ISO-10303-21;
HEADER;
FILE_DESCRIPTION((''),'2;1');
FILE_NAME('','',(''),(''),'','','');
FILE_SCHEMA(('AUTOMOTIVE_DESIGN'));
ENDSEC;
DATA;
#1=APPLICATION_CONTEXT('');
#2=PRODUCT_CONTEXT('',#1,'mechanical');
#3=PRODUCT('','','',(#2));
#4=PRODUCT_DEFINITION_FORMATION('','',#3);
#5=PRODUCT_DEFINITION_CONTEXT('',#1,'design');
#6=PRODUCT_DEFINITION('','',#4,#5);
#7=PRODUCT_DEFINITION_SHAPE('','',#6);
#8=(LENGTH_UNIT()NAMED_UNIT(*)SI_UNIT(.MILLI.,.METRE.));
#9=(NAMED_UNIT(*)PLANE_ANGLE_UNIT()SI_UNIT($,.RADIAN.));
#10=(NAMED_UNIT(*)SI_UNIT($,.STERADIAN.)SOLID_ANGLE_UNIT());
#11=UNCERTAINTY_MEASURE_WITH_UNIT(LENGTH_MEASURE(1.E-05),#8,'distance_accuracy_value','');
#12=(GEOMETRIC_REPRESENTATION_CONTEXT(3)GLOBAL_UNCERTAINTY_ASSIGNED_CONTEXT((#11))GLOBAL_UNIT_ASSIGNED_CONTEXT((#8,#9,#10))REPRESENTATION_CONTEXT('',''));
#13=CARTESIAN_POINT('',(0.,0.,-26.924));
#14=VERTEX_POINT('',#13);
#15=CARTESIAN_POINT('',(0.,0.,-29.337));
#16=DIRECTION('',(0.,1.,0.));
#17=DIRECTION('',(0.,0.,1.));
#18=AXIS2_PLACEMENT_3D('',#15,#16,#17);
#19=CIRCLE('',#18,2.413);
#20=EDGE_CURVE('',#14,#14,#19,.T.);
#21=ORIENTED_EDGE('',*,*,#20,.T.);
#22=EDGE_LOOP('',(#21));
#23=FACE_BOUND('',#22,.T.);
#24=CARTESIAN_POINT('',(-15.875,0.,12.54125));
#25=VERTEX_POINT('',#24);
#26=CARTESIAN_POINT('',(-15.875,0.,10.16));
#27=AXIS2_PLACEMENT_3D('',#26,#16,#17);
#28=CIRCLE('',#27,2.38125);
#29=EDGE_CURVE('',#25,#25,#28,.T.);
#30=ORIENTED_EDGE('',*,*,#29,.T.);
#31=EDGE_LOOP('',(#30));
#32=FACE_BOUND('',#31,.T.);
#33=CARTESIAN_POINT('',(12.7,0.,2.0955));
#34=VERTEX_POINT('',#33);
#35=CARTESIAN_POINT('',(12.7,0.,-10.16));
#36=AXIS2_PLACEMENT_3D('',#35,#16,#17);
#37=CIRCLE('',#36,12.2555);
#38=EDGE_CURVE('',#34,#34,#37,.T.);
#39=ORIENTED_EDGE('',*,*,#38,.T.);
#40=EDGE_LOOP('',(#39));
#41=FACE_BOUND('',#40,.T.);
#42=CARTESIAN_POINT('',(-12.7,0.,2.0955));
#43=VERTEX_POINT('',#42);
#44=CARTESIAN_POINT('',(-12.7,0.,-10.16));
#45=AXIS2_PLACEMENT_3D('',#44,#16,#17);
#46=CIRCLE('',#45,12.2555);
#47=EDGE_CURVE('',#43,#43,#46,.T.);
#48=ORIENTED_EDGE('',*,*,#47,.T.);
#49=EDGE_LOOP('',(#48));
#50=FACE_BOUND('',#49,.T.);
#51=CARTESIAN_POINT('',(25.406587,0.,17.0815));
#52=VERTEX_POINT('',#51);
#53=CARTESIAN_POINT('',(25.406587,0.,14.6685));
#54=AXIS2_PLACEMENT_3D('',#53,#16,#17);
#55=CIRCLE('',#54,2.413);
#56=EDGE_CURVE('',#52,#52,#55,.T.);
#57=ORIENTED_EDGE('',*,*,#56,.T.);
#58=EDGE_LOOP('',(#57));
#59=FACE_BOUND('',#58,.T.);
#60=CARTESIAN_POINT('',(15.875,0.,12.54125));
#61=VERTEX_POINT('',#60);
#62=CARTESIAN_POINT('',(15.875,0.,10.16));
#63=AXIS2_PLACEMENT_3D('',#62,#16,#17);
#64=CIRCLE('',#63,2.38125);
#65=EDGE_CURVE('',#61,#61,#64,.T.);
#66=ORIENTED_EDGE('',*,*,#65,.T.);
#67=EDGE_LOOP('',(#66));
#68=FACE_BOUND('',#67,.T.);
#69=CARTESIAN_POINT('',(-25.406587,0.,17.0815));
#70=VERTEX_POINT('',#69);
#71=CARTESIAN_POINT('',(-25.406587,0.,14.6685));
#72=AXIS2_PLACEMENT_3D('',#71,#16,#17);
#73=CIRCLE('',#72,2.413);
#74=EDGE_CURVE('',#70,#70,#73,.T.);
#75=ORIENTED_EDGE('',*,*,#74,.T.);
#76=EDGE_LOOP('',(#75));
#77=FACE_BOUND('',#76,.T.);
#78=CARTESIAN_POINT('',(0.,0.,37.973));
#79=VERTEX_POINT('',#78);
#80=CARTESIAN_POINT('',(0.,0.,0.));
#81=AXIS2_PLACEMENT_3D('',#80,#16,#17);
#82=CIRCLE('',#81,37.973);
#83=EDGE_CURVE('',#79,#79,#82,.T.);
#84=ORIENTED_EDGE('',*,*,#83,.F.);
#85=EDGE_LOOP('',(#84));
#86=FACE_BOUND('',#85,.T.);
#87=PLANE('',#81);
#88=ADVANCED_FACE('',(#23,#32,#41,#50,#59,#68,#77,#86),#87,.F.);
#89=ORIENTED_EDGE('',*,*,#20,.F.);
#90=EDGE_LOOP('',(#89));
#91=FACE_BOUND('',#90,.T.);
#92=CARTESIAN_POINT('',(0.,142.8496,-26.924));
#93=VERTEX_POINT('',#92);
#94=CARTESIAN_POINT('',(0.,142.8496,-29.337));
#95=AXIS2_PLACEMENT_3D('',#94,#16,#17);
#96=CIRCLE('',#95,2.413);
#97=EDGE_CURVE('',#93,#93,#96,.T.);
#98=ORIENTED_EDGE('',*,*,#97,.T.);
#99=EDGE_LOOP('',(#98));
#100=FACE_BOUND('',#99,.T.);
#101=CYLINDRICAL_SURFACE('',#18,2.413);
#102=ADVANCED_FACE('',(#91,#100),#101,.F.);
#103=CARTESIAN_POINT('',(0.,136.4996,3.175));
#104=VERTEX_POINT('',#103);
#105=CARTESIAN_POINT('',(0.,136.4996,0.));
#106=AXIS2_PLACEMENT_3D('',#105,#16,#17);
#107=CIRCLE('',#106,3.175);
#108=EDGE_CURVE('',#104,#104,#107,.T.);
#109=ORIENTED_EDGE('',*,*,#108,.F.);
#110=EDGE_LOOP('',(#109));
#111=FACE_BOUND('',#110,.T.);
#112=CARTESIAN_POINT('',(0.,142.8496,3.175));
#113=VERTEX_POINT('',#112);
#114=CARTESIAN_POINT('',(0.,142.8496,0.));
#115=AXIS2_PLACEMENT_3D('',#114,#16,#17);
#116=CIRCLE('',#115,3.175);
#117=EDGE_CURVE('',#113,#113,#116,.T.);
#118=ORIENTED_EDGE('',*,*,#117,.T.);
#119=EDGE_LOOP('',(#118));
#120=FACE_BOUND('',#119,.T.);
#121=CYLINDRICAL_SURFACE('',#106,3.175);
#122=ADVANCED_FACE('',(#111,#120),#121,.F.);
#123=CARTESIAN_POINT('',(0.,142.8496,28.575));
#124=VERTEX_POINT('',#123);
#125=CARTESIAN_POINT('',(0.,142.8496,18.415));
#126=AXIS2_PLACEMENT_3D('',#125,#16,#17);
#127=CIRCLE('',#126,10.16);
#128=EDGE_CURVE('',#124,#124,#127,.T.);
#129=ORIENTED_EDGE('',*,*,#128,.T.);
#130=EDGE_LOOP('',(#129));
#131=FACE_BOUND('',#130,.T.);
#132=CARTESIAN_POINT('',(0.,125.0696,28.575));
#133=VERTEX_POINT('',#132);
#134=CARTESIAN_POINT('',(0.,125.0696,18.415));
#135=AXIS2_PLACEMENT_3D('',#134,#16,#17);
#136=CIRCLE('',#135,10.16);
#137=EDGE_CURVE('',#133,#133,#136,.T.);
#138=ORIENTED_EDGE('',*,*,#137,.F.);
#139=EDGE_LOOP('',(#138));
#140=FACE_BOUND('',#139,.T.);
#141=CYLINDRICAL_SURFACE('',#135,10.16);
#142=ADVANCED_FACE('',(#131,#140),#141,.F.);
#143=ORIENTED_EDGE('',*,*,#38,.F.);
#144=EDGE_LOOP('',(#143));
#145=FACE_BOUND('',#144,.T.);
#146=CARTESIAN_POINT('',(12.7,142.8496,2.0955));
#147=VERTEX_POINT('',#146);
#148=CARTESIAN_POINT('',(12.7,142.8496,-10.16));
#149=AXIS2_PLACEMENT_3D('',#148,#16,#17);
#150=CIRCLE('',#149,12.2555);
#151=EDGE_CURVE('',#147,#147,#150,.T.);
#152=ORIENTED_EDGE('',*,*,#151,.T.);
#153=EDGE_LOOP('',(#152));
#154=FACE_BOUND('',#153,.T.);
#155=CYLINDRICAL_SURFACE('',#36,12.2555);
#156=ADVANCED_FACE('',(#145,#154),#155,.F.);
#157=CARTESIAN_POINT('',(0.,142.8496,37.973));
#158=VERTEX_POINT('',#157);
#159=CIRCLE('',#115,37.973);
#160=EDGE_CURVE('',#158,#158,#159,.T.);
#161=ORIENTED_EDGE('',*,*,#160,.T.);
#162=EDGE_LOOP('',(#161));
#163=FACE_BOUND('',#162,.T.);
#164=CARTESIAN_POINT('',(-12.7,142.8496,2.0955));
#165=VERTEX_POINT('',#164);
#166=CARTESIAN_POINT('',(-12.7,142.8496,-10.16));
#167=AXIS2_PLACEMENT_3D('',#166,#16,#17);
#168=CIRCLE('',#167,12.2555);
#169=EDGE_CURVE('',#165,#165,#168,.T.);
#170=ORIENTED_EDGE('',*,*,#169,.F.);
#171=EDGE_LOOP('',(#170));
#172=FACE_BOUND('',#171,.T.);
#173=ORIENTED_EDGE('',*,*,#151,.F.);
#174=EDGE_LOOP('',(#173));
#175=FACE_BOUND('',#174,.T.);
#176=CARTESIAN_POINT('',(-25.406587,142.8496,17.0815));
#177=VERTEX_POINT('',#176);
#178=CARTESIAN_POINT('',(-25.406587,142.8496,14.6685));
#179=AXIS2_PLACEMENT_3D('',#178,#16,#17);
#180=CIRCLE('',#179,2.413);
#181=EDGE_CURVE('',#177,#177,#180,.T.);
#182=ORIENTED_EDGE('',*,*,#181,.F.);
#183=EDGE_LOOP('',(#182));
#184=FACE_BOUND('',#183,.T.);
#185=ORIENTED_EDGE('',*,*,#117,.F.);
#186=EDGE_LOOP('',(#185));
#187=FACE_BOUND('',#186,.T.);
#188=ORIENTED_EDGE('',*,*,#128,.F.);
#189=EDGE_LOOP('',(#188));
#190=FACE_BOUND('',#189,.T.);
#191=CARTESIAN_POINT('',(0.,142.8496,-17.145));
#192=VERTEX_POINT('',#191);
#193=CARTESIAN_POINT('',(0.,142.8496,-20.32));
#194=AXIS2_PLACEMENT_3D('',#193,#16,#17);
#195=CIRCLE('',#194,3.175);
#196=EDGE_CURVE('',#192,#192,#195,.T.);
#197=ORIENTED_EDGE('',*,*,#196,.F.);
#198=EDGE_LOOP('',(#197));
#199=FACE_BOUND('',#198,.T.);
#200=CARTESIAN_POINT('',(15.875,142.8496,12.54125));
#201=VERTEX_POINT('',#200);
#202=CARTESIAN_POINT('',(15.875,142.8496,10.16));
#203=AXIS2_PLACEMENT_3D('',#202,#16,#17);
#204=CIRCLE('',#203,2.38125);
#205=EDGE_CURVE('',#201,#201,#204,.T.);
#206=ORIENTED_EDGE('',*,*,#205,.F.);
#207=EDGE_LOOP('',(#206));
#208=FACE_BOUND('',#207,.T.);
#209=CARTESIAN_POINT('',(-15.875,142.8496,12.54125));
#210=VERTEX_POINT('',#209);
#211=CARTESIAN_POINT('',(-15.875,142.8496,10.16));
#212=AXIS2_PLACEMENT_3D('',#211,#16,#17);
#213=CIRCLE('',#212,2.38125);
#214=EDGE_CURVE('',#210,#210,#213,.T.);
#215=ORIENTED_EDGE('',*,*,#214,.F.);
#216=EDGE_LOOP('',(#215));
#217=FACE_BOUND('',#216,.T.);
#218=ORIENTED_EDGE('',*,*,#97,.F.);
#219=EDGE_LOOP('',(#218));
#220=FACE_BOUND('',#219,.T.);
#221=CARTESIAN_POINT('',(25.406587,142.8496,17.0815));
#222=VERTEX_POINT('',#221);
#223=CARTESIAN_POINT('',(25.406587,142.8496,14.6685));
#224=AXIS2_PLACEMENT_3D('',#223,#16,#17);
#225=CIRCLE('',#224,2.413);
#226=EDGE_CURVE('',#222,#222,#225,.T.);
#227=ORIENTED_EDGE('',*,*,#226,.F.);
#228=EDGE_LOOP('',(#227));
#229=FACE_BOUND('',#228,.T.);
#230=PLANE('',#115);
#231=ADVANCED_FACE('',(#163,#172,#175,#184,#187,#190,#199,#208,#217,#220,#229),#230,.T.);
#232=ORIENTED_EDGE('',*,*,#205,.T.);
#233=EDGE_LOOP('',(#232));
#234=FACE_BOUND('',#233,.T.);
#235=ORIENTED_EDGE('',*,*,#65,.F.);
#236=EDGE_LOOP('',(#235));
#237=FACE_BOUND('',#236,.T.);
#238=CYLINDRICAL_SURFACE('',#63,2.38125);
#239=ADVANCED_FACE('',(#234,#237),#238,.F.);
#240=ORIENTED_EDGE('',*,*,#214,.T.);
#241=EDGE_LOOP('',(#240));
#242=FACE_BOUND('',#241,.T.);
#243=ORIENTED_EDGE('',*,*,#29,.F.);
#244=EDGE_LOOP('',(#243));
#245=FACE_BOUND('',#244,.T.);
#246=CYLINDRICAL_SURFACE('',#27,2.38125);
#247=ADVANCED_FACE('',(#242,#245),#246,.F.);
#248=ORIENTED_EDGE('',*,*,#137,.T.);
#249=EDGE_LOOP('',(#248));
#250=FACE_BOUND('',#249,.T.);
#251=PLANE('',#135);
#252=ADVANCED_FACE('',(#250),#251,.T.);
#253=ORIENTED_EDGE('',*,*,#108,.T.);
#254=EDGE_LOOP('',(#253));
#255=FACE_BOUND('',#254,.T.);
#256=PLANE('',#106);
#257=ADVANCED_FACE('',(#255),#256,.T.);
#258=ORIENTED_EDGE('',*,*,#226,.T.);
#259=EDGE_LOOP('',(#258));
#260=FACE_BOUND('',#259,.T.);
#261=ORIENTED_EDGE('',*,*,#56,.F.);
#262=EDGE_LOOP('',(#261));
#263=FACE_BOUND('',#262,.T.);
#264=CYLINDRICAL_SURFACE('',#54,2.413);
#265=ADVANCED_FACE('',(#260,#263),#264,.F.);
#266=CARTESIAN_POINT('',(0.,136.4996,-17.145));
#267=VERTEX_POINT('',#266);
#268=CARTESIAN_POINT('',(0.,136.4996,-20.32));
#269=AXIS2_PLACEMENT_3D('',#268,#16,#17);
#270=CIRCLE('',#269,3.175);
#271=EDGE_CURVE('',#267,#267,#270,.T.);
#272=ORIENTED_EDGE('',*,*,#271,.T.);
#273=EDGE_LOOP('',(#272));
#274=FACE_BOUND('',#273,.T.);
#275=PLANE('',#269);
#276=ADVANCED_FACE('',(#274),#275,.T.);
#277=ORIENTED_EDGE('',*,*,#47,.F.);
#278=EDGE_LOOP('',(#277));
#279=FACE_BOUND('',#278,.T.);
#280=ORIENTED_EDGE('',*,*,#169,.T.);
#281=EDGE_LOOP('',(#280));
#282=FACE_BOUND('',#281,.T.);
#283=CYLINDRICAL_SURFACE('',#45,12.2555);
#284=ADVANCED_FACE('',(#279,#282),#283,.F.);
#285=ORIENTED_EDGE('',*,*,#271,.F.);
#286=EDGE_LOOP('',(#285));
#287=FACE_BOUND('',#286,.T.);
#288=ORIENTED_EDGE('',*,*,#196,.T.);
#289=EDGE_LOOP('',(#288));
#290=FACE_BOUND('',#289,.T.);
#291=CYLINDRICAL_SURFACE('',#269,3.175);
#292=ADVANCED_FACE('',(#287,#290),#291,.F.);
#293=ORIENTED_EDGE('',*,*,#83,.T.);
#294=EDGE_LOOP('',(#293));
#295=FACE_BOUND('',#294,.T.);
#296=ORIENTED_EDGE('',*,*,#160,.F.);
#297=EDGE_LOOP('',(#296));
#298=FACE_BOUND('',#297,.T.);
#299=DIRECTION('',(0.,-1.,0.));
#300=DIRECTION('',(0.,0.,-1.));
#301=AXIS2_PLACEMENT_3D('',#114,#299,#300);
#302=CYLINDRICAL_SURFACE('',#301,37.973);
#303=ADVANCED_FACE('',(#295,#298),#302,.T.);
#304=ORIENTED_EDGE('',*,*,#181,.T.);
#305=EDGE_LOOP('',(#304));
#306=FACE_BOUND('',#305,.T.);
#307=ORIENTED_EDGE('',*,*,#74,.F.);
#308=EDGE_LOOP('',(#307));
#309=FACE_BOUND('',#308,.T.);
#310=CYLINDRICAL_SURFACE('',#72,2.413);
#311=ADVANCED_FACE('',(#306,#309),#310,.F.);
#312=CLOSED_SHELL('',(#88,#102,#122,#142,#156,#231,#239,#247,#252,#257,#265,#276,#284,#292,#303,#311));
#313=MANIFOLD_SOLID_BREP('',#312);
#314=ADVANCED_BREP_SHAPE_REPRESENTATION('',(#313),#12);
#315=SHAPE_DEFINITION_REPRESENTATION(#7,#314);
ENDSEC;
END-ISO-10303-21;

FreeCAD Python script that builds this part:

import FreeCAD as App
import Part
import Sketcher

V = App.Vector
Q = App.Units.Quantity

doc = App.newDocument("Part")
body = doc.addObject("PartDesign::Body", "Body")

# Sketch on XZ plane
sketch1 = body.newObject("Sketcher::SketchObject", "Sketch")
sketch1.AttachmentSupport = (doc.getObject("XZ_Plane"), [""])
sketch1.MapMode = "FlatFace"
sketch1.addGeometry(Part.Circle(V(0, 0, 0), V(0, 0, 1), 37.973), False)
sketch1.addConstraint([
    Sketcher.Constraint("Coincident", 0, 3, -1, 1),
    Sketcher.Constraint("Diameter", 0, Q("2.99 in")),
])
pad1 = body.newObject("PartDesign::Pad", "Pad")
pad1.Profile = sketch1
pad1.Length = Q("5.624 in")
pad1.Reversed = True

# Sketch on XZ plane
sketch2 = body.newObject("Sketcher::SketchObject", "Sketch001")
sketch2.AttachmentSupport = (doc.getObject("XZ_Plane"), [""])
sketch2.MapMode = "FlatFace"
sketch2.AttachmentOffset = App.Placement(V(0, 0, -5.624 * 25.4), App.Rotation())
sketch2.addGeometry([
    Part.Circle(V(0, -29.337, 0), V(0, 0, 1), 2.413),
    Part.Circle(V(25.406587, 14.6685, 0), V(0, 0, 1), 2.413),
    Part.Circle(V(-25.406587, 14.6685, 0), V(0, 0, 1), 2.413),
], False)
sketch2.addConstraint([
    Sketcher.Constraint("Equal", 0, 1),
    Sketcher.Constraint("Equal", 1, 2),
    Sketcher.Constraint("Symmetric", 1, 3, 2, 3, -2),
    Sketcher.Constraint("PointOnObject", 0, 3, -2),
    Sketcher.Constraint("Diameter", 0, Q("0.19 in")),
    Sketcher.Constraint("DistanceY", 0, 3, -1, 1, Q("1.155 in")),
    Sketcher.Constraint("DistanceY", -1, 1, 1, 3, Q("0.5775 in")),
    Sketcher.Constraint("DistanceX", -1, 1, 1, 3, Q("25.406587 mm")),
])
pocket1 = body.newObject("PartDesign::Pocket", "Pocket")
pocket1.Profile = sketch2
pocket1.Type = "ThroughAll"
pocket1.Reversed = True

# Sketch on XZ plane
sketch3 = body.newObject("Sketcher::SketchObject", "Sketch002")
sketch3.AttachmentSupport = (doc.getObject("XZ_Plane"), [""])
sketch3.MapMode = "FlatFace"
sketch3.AttachmentOffset = App.Placement(V(0, 0, -5.624 * 25.4), App.Rotation())
sketch3.addGeometry([
    Part.Circle(V(-12.7, -10.16, 0), V(0, 0, 1), 12.2555),
    Part.Circle(V(12.7, -10.16, 0), V(0, 0, 1), 12.2555),
], False)
sketch3.addConstraint([
    Sketcher.Constraint("Equal", 0, 1),
    Sketcher.Constraint("Symmetric", 0, 3, 1, 3, -2),
    Sketcher.Constraint("Diameter", 0, Q("0.965 in")),
    Sketcher.Constraint("DistanceX", 0, 3, 1, 3, Q("1 in")),
    Sketcher.Constraint("DistanceY", 0, 3, -1, 1, Q("0.4 in")),
])
pocket2 = body.newObject("PartDesign::Pocket", "Pocket001")
pocket2.Profile = sketch3
pocket2.Type = "ThroughAll"
pocket2.Reversed = True

# Sketch on XZ plane
sketch4 = body.newObject("Sketcher::SketchObject", "Sketch003")
sketch4.AttachmentSupport = (doc.getObject("XZ_Plane"), [""])
sketch4.MapMode = "FlatFace"
sketch4.AttachmentOffset = App.Placement(V(0, 0, -5.624 * 25.4), App.Rotation())
sketch4.addGeometry([
    Part.Circle(V(0, -20.32, 0), V(0, 0, 1), 3.175),
    Part.Circle(V(0, 0, 0), V(0, 0, 1), 3.175),
], False)
sketch4.addConstraint([
    Sketcher.Constraint("Coincident", 1, 3, -1, 1),
    Sketcher.Constraint("Equal", 0, 1),
    Sketcher.Constraint("PointOnObject", 0, 3, -2),
    Sketcher.Constraint("Diameter", 0, Q("0.25 in")),
    Sketcher.Constraint("DistanceY", 0, 3, -1, 1, Q("0.8 in")),
])
pocket3 = body.newObject("PartDesign::Pocket", "Pocket002")
pocket3.Profile = sketch4
pocket3.Length = Q("0.25 in")
pocket3.Reversed = True

# Sketch on XZ plane
sketch5 = body.newObject("Sketcher::SketchObject", "Sketch004")
sketch5.AttachmentSupport = (doc.getObject("XZ_Plane"), [""])
sketch5.MapMode = "FlatFace"
sketch5.AttachmentOffset = App.Placement(V(0, 0, -5.624 * 25.4), App.Rotation())
sketch5.addGeometry(Part.Circle(V(0, 18.415, 0), V(0, 0, 1), 10.16), False)
sketch5.addConstraint([
    Sketcher.Constraint("PointOnObject", 0, 3, -2),
    Sketcher.Constraint("Diameter", 0, Q("0.8 in")),
    Sketcher.Constraint("DistanceY", -1, 1, 0, 3, Q("0.725 in")),
])
pocket4 = body.newObject("PartDesign::Pocket", "Pocket003")
pocket4.Profile = sketch5
pocket4.Length = Q("0.7 in")
pocket4.Reversed = True

# Sketch on XZ plane
sketch6 = body.newObject("Sketcher::SketchObject", "Sketch005")
sketch6.AttachmentSupport = (doc.getObject("XZ_Plane"), [""])
sketch6.MapMode = "FlatFace"
sketch6.AttachmentOffset = App.Placement(V(0, 0, -5.624 * 25.4), App.Rotation())
sketch6.addGeometry([
    Part.Circle(V(15.875, 10.16, 0), V(0, 0, 1), 2.38125),
    Part.Circle(V(-15.875, 10.16, 0), V(0, 0, 1), 2.38125),
], False)
sketch6.addConstraint([
    Sketcher.Constraint("Equal", 0, 1),
    Sketcher.Constraint("Symmetric", 0, 3, 1, 3, -2),
    Sketcher.Constraint("Diameter", 0, Q("0.1875 in")),
    Sketcher.Constraint("DistanceY", -1, 1, 0, 3, Q("0.4 in")),
    Sketcher.Constraint("DistanceX", 1, 3, 0, 3, Q("1.25 in")),
])
pocket5 = body.newObject("PartDesign::Pocket", "Pocket004")
pocket5.Profile = sketch6
pocket5.Type = "ThroughAll"
pocket5.Midplane = True

doc.recompute()
